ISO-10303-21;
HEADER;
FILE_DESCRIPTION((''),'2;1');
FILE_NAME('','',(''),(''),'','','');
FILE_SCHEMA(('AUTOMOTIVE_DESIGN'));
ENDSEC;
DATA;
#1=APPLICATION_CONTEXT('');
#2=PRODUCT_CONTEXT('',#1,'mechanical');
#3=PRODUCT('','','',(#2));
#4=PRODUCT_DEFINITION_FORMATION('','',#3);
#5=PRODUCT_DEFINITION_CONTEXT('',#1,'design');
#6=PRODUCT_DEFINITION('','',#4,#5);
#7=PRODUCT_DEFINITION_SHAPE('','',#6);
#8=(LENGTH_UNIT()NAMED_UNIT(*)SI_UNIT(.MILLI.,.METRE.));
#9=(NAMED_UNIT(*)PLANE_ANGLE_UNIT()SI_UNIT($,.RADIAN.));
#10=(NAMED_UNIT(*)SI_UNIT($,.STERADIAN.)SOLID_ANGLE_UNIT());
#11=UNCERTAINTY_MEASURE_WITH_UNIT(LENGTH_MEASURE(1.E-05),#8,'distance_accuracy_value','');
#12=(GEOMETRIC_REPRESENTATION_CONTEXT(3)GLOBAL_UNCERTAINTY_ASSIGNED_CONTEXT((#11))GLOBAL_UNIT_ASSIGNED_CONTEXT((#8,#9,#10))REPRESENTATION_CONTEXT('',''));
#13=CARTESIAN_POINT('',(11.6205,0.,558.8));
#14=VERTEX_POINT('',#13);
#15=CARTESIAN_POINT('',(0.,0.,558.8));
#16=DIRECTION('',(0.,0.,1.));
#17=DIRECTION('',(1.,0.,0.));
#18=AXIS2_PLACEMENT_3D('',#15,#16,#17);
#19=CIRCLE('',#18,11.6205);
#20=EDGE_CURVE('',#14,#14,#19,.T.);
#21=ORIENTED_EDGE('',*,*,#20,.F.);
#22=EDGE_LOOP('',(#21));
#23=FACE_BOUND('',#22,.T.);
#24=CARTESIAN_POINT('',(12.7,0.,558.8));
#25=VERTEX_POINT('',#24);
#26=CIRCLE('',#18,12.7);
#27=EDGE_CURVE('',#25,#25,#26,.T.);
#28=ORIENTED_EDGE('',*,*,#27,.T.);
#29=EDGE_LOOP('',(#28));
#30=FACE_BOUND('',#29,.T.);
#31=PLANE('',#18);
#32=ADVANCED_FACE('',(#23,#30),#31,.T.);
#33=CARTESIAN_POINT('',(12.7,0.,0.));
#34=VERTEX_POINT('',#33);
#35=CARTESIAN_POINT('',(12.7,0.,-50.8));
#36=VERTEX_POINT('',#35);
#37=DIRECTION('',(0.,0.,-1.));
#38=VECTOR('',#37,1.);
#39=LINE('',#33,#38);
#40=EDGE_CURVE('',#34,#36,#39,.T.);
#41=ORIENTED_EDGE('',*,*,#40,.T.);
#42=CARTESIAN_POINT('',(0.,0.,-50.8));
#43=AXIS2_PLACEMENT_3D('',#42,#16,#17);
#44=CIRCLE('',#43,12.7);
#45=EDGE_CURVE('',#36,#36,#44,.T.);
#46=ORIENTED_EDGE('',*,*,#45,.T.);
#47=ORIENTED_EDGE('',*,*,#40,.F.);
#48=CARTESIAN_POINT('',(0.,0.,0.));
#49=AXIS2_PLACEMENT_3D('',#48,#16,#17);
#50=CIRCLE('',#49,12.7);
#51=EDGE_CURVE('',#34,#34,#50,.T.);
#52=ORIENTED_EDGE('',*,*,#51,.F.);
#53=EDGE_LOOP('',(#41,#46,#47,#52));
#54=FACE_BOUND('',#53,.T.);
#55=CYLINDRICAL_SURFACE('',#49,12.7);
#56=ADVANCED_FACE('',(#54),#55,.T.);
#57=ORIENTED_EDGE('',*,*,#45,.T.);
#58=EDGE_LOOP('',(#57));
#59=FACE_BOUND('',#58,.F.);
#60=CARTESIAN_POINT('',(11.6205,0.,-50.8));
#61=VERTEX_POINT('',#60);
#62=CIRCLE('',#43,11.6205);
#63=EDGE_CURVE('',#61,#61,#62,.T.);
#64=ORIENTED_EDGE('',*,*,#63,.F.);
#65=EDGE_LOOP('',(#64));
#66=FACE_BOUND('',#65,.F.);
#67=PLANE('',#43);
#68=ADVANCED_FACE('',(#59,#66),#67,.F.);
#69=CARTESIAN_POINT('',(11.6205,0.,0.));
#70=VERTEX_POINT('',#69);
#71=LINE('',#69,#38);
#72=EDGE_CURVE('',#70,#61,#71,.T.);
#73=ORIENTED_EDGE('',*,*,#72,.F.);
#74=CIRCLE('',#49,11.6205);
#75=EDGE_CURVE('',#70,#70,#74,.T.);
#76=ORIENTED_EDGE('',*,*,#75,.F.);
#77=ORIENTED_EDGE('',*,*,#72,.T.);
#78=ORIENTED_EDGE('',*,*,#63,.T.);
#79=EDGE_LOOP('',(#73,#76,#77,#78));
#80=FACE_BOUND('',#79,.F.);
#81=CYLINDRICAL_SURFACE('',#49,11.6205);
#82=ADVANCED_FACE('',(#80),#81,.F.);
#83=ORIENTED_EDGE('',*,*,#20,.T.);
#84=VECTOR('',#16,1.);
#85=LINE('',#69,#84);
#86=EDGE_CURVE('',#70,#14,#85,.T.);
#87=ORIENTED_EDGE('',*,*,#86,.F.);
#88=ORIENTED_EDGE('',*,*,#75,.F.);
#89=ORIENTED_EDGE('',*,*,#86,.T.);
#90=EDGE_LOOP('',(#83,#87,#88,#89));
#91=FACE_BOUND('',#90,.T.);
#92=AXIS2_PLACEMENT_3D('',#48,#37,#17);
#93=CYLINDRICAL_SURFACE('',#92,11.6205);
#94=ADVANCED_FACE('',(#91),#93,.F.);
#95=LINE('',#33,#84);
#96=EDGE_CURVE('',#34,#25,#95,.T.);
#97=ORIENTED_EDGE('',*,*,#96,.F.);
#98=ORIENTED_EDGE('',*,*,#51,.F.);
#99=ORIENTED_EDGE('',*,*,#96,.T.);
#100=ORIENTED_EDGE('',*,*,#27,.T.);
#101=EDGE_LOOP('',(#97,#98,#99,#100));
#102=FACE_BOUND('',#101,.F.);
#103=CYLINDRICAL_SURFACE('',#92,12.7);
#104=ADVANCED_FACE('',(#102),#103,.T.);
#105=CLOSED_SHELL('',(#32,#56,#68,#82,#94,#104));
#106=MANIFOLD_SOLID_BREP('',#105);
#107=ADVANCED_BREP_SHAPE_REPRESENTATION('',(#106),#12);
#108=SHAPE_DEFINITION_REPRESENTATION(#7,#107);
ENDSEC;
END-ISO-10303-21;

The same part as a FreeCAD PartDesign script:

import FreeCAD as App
import Part
import Sketcher
from FreeCAD import Vector
Q = App.Units.Quantity

doc = App.newDocument("Part")
body = doc.addObject("PartDesign::Body", "Body")

# Sketch on XY plane
sketch1 = body.newObject("Sketcher::SketchObject", "Sketch")
sketch1.AttachmentSupport = (doc.getObject("XY_Plane"), [""])
sketch1.MapMode = "FlatFace"
sketch1.addGeometry(Part.Circle(Vector(0, 0, 0), Vector(0, 0, 1), 13), False)
sketch1.addGeometry(Part.Circle(Vector(0, 0, 0), Vector(0, 0, 1), 12), False)
sketch1.addConstraint(Sketcher.Constraint("Coincident", 0, 3, -1, 1))
sketch1.addConstraint(Sketcher.Constraint("Coincident", 1, 3, -1, 1))
sketch1.addConstraint(Sketcher.Constraint("Diameter", 0, Q("1 in")))
sketch1.addConstraint(Sketcher.Constraint("Diameter", 1, Q("0.915 in")))
pad1 = body.newObject("PartDesign::Pad", "Pad")
pad1.Profile = sketch1
pad1.Type = "TwoLengths"
pad1.Length = Q("22 in")
pad1.Length2 = Q("2 in")

doc.recompute()
